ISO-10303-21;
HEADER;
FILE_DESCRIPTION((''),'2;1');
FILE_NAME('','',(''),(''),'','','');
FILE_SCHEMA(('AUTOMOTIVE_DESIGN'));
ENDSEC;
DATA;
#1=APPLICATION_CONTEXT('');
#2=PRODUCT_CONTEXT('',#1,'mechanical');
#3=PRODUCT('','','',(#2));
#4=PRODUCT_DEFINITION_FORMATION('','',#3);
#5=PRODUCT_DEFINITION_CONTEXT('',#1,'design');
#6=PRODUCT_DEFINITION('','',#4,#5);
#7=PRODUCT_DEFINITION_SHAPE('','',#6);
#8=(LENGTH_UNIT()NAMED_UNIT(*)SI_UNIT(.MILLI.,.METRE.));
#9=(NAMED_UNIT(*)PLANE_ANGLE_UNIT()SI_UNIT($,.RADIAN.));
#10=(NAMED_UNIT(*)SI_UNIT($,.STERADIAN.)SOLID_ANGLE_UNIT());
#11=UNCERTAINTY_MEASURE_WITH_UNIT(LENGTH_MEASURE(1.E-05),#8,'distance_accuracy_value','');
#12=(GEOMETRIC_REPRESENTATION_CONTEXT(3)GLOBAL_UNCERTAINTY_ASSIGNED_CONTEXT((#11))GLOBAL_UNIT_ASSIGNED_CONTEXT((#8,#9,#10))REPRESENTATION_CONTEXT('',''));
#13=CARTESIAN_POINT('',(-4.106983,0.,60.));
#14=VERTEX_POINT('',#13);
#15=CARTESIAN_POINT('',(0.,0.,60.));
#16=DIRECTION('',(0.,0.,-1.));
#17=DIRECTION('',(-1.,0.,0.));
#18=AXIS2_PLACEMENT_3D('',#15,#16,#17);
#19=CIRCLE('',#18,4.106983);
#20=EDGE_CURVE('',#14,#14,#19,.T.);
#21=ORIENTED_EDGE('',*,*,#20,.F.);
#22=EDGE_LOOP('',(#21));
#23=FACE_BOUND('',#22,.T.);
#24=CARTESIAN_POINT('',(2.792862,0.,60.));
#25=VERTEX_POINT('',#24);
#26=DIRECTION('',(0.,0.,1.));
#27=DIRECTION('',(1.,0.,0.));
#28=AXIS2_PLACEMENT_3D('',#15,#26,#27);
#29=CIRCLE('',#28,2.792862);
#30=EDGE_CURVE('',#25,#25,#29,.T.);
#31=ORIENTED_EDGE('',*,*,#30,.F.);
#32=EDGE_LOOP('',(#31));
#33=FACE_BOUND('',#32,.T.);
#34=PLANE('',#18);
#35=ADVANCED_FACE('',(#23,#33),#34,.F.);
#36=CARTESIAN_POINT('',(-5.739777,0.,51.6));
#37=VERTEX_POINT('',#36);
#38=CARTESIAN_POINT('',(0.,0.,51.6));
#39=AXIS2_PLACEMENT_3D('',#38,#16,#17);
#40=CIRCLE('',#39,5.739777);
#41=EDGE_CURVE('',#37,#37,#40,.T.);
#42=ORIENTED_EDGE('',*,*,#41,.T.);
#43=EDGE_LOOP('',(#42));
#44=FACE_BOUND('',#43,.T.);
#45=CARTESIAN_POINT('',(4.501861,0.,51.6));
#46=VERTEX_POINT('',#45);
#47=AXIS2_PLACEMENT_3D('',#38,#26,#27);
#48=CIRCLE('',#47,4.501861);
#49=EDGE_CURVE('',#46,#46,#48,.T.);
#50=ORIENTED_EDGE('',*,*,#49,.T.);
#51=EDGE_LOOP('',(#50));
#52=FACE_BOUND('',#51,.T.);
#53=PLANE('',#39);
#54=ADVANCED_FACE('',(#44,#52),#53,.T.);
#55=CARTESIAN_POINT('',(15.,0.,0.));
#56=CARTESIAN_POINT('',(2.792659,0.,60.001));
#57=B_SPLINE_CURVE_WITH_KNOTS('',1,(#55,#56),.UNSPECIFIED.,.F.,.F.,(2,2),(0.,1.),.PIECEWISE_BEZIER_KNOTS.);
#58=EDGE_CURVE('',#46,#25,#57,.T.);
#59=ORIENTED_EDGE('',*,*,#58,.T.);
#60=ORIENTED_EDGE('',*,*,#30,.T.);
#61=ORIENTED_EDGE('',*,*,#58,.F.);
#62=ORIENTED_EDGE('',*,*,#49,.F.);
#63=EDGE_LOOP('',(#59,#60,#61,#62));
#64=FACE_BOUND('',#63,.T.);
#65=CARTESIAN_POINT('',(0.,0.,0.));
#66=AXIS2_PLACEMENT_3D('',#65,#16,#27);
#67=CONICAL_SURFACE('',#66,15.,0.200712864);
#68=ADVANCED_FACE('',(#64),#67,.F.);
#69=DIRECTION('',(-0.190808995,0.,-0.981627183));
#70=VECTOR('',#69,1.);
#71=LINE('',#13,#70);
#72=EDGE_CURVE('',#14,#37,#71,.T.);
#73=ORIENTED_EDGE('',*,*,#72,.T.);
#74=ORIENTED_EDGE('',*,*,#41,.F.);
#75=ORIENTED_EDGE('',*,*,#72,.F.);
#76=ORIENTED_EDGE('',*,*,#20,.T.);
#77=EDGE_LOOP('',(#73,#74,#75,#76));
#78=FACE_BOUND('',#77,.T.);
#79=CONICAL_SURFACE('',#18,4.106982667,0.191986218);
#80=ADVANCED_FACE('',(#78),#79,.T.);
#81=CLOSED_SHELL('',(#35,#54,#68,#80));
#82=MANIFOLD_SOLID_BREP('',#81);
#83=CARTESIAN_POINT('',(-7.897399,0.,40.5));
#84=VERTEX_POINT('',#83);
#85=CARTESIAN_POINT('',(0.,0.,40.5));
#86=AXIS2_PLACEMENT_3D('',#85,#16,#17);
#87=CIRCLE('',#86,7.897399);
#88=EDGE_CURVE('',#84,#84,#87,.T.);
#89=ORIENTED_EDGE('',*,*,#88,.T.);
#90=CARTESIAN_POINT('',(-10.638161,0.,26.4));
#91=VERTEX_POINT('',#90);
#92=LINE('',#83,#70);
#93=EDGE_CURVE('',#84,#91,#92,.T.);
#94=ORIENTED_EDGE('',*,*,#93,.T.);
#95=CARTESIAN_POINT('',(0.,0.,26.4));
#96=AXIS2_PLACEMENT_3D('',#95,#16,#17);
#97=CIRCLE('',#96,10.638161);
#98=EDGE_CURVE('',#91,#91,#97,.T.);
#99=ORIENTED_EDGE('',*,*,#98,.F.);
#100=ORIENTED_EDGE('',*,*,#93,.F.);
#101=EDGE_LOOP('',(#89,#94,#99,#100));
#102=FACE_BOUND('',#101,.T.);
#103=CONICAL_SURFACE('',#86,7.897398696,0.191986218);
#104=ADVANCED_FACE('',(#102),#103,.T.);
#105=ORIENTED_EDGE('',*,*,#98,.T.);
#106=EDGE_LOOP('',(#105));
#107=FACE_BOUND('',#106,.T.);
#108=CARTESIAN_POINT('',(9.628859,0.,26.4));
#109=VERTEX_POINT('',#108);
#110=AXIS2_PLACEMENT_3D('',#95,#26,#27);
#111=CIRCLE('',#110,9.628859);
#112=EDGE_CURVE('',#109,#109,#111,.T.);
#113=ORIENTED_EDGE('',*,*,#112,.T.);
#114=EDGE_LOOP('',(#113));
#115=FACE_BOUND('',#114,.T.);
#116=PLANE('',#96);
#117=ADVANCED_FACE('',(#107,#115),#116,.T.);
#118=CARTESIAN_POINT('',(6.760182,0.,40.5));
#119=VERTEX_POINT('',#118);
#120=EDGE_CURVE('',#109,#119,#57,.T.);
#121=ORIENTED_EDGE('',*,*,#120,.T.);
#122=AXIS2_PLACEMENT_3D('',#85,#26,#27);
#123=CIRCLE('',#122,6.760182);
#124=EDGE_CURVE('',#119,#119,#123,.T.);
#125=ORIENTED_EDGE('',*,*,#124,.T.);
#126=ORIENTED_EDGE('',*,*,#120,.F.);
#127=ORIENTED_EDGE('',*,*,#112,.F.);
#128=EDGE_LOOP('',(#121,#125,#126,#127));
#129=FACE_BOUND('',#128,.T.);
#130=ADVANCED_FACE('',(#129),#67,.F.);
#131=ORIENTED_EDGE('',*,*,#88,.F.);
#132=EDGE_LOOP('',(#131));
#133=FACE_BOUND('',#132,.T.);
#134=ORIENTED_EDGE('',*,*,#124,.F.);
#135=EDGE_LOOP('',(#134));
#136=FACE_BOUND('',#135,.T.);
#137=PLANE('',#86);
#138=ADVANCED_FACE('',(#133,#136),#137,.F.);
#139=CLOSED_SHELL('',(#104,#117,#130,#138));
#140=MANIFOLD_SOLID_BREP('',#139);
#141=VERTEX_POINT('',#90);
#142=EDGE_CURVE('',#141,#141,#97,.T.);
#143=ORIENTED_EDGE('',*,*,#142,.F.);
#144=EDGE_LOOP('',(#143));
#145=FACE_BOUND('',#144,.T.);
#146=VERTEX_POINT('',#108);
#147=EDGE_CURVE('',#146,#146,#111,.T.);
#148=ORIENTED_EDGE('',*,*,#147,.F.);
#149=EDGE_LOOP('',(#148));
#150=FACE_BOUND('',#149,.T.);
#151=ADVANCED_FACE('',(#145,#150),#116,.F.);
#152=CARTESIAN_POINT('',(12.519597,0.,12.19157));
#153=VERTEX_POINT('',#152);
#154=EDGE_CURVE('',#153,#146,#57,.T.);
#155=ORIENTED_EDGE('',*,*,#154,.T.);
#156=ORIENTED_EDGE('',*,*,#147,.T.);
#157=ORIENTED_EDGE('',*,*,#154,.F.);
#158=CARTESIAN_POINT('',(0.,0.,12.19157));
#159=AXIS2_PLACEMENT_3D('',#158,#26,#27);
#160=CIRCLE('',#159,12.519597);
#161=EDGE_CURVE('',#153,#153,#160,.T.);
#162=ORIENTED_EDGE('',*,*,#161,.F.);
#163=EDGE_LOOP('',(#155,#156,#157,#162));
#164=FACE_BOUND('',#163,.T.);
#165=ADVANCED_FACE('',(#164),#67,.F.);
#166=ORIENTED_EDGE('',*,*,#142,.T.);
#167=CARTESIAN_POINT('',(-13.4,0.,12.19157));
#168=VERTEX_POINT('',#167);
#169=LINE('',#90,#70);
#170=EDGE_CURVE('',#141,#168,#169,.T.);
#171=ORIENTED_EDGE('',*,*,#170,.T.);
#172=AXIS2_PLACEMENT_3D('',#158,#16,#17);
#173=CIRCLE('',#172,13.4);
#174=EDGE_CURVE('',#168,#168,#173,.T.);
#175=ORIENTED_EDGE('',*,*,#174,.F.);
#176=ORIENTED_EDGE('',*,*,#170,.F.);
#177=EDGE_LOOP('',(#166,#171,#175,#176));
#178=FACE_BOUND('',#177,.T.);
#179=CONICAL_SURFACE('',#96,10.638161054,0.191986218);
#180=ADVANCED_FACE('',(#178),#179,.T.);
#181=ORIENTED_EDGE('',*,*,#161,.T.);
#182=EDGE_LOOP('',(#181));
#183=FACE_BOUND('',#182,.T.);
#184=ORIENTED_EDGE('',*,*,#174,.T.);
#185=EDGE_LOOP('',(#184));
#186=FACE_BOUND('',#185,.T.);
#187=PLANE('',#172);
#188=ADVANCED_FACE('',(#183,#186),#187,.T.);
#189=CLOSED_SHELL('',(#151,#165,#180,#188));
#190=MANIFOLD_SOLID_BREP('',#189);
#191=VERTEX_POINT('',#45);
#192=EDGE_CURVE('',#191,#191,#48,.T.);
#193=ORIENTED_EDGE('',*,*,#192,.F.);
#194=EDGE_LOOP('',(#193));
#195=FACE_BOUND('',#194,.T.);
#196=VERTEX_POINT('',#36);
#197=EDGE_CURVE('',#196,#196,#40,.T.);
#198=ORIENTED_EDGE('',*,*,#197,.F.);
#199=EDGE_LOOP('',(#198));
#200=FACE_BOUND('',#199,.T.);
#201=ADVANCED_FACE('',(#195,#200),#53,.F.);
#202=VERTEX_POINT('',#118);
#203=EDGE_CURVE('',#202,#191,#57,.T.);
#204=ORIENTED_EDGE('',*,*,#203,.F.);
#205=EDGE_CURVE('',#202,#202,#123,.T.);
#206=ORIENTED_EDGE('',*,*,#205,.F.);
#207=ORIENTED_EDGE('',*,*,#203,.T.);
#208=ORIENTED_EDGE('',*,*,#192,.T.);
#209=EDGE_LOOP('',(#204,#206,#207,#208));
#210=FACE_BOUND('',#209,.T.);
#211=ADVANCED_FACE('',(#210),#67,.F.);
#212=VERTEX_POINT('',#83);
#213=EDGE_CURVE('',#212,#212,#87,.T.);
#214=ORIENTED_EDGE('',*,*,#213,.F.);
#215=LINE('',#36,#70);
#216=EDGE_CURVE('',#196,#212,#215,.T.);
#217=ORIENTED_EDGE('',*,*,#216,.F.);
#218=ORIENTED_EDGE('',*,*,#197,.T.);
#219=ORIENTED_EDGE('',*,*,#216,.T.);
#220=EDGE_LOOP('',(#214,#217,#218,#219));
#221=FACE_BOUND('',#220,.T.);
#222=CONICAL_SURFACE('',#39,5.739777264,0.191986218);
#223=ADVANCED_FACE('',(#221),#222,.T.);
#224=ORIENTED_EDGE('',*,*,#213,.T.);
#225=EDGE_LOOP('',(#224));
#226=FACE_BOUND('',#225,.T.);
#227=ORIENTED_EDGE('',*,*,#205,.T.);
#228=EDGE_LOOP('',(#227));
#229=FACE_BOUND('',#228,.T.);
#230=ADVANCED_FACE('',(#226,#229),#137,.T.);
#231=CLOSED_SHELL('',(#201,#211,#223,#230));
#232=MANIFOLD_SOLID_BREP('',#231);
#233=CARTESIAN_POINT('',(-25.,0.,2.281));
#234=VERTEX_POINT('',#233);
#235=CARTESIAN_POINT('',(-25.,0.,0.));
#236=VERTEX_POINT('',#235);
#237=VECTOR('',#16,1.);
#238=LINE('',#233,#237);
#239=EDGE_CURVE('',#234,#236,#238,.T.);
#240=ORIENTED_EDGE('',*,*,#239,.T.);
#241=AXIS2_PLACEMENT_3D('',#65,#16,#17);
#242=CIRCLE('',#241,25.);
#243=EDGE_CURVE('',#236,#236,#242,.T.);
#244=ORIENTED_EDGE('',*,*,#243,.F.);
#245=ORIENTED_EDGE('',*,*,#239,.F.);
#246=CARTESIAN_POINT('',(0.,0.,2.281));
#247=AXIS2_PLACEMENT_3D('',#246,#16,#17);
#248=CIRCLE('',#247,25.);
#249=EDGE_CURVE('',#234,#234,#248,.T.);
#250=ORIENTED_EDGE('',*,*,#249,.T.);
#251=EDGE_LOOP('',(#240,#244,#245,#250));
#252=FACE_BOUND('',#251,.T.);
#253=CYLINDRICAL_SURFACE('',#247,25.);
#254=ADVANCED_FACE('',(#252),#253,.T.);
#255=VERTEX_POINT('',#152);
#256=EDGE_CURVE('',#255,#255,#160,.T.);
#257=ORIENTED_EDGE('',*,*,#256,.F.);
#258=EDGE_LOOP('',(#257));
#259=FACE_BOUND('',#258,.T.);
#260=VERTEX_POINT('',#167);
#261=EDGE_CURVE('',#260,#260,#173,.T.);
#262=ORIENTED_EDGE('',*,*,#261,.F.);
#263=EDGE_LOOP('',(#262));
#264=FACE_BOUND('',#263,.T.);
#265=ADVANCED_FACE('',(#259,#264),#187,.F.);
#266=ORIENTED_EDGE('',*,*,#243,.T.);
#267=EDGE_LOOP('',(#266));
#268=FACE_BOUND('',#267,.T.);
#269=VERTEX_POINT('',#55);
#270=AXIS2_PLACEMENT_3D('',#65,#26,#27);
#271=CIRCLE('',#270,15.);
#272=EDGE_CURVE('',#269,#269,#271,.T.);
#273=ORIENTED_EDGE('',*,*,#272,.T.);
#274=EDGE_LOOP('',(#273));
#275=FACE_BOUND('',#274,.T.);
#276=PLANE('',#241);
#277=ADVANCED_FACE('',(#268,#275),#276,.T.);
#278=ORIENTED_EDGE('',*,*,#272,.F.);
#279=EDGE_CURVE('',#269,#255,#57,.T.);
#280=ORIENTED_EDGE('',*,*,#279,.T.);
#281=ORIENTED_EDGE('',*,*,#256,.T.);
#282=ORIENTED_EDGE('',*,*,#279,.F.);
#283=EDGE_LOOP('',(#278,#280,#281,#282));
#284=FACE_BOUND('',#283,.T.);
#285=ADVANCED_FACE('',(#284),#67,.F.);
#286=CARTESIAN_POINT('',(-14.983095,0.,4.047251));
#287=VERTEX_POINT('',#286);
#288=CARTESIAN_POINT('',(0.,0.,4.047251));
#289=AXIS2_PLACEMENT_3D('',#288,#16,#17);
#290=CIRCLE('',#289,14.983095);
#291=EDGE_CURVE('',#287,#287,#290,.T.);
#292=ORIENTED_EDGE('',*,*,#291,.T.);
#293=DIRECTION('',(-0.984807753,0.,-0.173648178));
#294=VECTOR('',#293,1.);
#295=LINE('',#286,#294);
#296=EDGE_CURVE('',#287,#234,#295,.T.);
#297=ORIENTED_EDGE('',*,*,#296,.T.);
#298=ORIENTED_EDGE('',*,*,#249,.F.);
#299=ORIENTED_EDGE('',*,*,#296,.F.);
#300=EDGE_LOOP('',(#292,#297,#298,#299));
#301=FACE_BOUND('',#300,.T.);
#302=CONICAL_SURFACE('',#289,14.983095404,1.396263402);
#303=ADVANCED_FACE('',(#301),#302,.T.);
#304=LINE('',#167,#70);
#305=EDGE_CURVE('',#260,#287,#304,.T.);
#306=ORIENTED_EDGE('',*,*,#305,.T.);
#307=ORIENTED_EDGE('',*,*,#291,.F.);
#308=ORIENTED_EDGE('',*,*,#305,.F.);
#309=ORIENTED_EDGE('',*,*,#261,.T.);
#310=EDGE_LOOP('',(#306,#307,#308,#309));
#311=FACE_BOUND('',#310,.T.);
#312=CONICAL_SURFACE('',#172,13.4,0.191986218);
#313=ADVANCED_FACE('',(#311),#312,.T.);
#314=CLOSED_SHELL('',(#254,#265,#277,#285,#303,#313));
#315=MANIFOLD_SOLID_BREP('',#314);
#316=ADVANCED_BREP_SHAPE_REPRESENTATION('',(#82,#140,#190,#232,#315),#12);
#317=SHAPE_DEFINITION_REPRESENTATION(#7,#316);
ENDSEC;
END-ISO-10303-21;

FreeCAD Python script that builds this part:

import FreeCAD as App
import Part
import Sketcher
from FreeCAD import Vector
Q = App.Units.Quantity


def add_polygon(sketch, points):
    """Adds a closed chain of lines whose ends are joined by coincident constraints."""
    first, n = sketch.GeometryCount, len(points)
    for a, b in zip(points, points[1:] + points[:1]):
        sketch.addGeometry(Part.LineSegment(App.Vector(*a, 0), App.Vector(*b, 0)), False)
    for i in range(n):
        sketch.addConstraint(Sketcher.Constraint("Coincident", first + i, 2, first + (i + 1) % n, 1))

doc = App.newDocument("Part")
body = doc.addObject("PartDesign::Body", "Body")

# Sketch on XZ plane
sketch1 = doc.addObject("Sketcher::SketchObject", "Sketch")
body.addObject(sketch1)
sketch1.AttachmentSupport = (doc.XZ_Plane, [""])
sketch1.MapMode = "FlatFace"
add_polygon(sketch1, [(-5.739777, 51.6), (0, 51.6), (0, 60), (-4.106983, 60)])  # lines 0-3
sketch1.addConstraint([
    Sketcher.Constraint("Horizontal", 0),
    Sketcher.Constraint("Vertical", 1),
    Sketcher.Constraint("Horizontal", 2),
    Sketcher.Constraint("PointOnObject", 0, 2, -2),
    Sketcher.Constraint("Angle", 3, Q("-101 deg")),
    Sketcher.Constraint("DistanceY", 1, 1, 1, 2, Q("8.4 mm")),
    Sketcher.Constraint("DistanceY", -1, 1, 1, 2, Q("60 mm")),
    Sketcher.Constraint("DistanceX", 0, 1, 0, 2, Q("5.739777 mm")),
])
revolution = doc.addObject("PartDesign::Revolution", "Revolution")
body.addObject(revolution)
revolution.Profile = sketch1
revolution.ReferenceAxis = (sketch1, ["V_Axis"])
revolution.Angle = 360
body2 = doc.addObject("PartDesign::Body", "Body001")

# Sketch on XZ plane
sketch2 = doc.addObject("Sketcher::SketchObject", "Sketch001")
body2.addObject(sketch2)
sketch2.AttachmentSupport = (doc.getObject("XZ_Plane001"), [""])
sketch2.MapMode = "FlatFace"
add_polygon(sketch2, [(-7.897399, 40.5), (0, 40.5), (0, 51.6), (-5.739777, 51.6)])  # lines 0-3
sketch2.addConstraint([
    Sketcher.Constraint("Horizontal", 0),
    Sketcher.Constraint("Vertical", 1),
    Sketcher.Constraint("Horizontal", 2),
    Sketcher.Constraint("PointOnObject", 0, 2, -2),
    Sketcher.Constraint("Angle", 3, Q("-101 deg")),
    Sketcher.Constraint("DistanceY", 1, 1, 1, 2, Q("11.1 mm")),
    Sketcher.Constraint("DistanceY", -1, 1, 0, 2, Q("40.5 mm")),
    Sketcher.Constraint("DistanceX", 0, 1, 0, 2, Q("7.897399 mm")),
])
revolution2 = doc.addObject("PartDesign::Revolution", "Revolution001")
body2.addObject(revolution2)
revolution2.Profile = sketch2
revolution2.ReferenceAxis = (sketch2, ["V_Axis"])
revolution2.Angle = 360
body3 = doc.addObject("PartDesign::Body", "Body002")

# Sketch on XZ plane
sketch3 = doc.addObject("Sketcher::SketchObject", "Sketch002")
body3.addObject(sketch3)
sketch3.AttachmentSupport = (doc.getObject("XZ_Plane002"), [""])
sketch3.MapMode = "FlatFace"
add_polygon(sketch3, [(-10.638161, 26.4), (0, 26.4), (0, 40.5), (-7.897399, 40.5)])  # lines 0-3
sketch3.addConstraint([
    Sketcher.Constraint("Horizontal", 0),
    Sketcher.Constraint("Vertical", 1),
    Sketcher.Constraint("Horizontal", 2),
    Sketcher.Constraint("PointOnObject", 0, 2, -2),
    Sketcher.Constraint("Angle", 3, Q("-101 deg")),
    Sketcher.Constraint("DistanceY", 1, 1, 1, 2, Q("14.1 mm")),
    Sketcher.Constraint("DistanceY", -1, 1, 0, 2, Q("26.4 mm")),
    Sketcher.Constraint("DistanceX", 2, 2, 2, 1, Q("7.897399 mm")),
])
revolution3 = doc.addObject("PartDesign::Revolution", "Revolution002")
body3.addObject(revolution3)
revolution3.Profile = sketch3
revolution3.ReferenceAxis = (sketch3, ["V_Axis"])
revolution3.Angle = 360
body4 = doc.addObject("PartDesign::Body", "Body003")

# Sketch on XZ plane
sketch4 = doc.addObject("Sketcher::SketchObject", "Sketch003")
body4.addObject(sketch4)
sketch4.AttachmentSupport = (doc.getObject("XZ_Plane003"), [""])
sketch4.MapMode = "FlatFace"
add_polygon(sketch4, [(-13.4, 12.19157), (0, 12.19157), (0, 26.4), (-10.638161, 26.4)])  # lines 0-3
sketch4.addConstraint([
    Sketcher.Constraint("Horizontal", 0),
    Sketcher.Constraint("Vertical", 1),
    Sketcher.Constraint("Horizontal", 2),
    Sketcher.Constraint("PointOnObject", 0, 2, -2),
    Sketcher.Constraint("Angle", 3, Q("-101 deg")),
    Sketcher.Constraint("DistanceX", 0, 1, 0, 2, Q("13.4 mm")),
    Sketcher.Constraint("DistanceY", -1, 1, 1, 2, Q("26.4 mm")),
    Sketcher.Constraint("DistanceX", 2, 2, 2, 1, Q("10.638161 mm")),
])
revolution4 = doc.addObject("PartDesign::Revolution", "Revolution003")
body4.addObject(revolution4)
revolution4.Profile = sketch4
revolution4.ReferenceAxis = (sketch4, ["V_Axis"])
revolution4.Angle = 360
body5 = doc.addObject("PartDesign::Body", "Body004")

# Sketch on XZ plane
sketch5 = doc.addObject("Sketcher::SketchObject", "Sketch004")
body5.addObject(sketch5)
sketch5.AttachmentSupport = (doc.getObject("XZ_Plane004"), [""])
sketch5.MapMode = "FlatFace"
add_polygon(sketch5, [(-25, 2.281), (-25, 0), (0, 0), (0, 12.19157), (-13.4, 12.19157), (-14.983095, 4.047251)])  # lines 0-5
sketch5.addConstraint([
    Sketcher.Constraint("Vertical", 0),
    Sketcher.Constraint("Horizontal", 1),
    Sketcher.Constraint("Vertical", 2),
    Sketcher.Constraint("Horizontal", 3),
    Sketcher.Constraint("Coincident", 1, 2, -1, 1),
    Sketcher.Constraint("DistanceX", 1, 1, 1, 2, Q("25 mm")),
    Sketcher.Constraint("Angle", 4, Q("-101 deg")),
    Sketcher.Constraint("Angle", 5, Q("-170 deg")),
    Sketcher.Constraint("DistanceX", 3, 2, 3, 1, Q("13.4 mm")),
    Sketcher.Constraint("DistanceY", 0, 2, 0, 1, Q("2.281 mm")),
    Sketcher.Constraint("DistanceY", 2, 1, 2, 2, Q("12.19157 mm")),
])
revolution5 = doc.addObject("PartDesign::Revolution", "Revolution004")
body5.addObject(revolution5)
revolution5.Profile = sketch5
revolution5.ReferenceAxis = (sketch5, ["V_Axis"])
revolution5.Angle = 360
body6 = doc.addObject("PartDesign::Body", "Body005")

# Sketch on XY plane
sketch6 = doc.addObject("Sketcher::SketchObject", "Sketch005")
body6.addObject(sketch6)
sketch6.AttachmentSupport = (doc.getObject("XY_Plane005"), [""])
sketch6.MapMode = "FlatFace"
sketch6.addGeometry(Part.Circle(Vector(0, 0, 0), Vector(0, 0, 1), 15), False)
sketch6.addConstraint([
    Sketcher.Constraint("Coincident", 0, 3, -1, 1),
    Sketcher.Constraint("Diameter", 0, Q("30 mm")),
])
pad1 = doc.addObject("PartDesign::Pad", "Pad")
body6.addObject(pad1)
pad1.Profile = sketch6
pad1.Length = 60.001
pad1.TaperAngle = -11.5
doc.recompute()

body7 = doc.addObject("PartDesign::Body", "Body006")
body7.BaseFeature = body6
boolean = doc.addObject("PartDesign::Boolean", "Boolean")
body.addObject(boolean)
boolean.Type = "Cut"
boolean.addObjects([body7])
doc.recompute()

body8 = doc.addObject("PartDesign::Body", "Body007")
body8.BaseFeature = body6
boolean2 = doc.addObject("PartDesign::Boolean", "Boolean001")
body2.addObject(boolean2)
boolean2.Type = "Cut"
boolean2.addObjects([body8])
doc.recompute()

body9 = doc.addObject("PartDesign::Body", "Body008")
body9.BaseFeature = body6
boolean3 = doc.addObject("PartDesign::Boolean", "Boolean002")
body3.addObject(boolean3)
boolean3.Type = "Cut"
boolean3.addObjects([body9])
doc.recompute()

body10 = doc.addObject("PartDesign::Body", "Body009")
body10.BaseFeature = body6
boolean4 = doc.addObject("PartDesign::Boolean", "Boolean003")
body4.addObject(boolean4)
boolean4.Type = "Cut"
boolean4.addObjects([body10])
doc.recompute()

boolean5 = doc.addObject("PartDesign::Boolean", "Boolean004")
body5.addObject(boolean5)
boolean5.Type = "Cut"
boolean5.addObjects([body6])

doc.recompute()
